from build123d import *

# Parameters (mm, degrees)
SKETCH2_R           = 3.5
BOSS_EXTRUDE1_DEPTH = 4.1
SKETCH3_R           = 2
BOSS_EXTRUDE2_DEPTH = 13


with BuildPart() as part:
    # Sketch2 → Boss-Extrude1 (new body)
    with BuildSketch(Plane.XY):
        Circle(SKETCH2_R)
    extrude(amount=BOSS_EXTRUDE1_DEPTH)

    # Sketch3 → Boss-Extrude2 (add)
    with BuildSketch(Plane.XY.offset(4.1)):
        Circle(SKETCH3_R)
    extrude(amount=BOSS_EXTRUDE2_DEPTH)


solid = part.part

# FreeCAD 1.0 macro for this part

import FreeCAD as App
import Part
import Sketcher
Q = App.Units.Quantity

doc = App.newDocument("Part")
body = doc.addObject("PartDesign::Body", "Body")

# Sketch on XY plane
sketch1 = doc.addObject("Sketcher::SketchObject", "Sketch")
body.addObject(sketch1)
sketch1.AttachmentSupport = (doc.XY_Plane, [""])
sketch1.MapMode = "FlatFace"
sketch1.addGeometry(Part.Circle(App.Vector(0, 0, 0), App.Vector(0, 0, 1), 3.5), False)
sketch1.addConstraint([
    Sketcher.Constraint("Coincident", 0, 3, -1, 1),
    Sketcher.Constraint("Diameter", 0, Q("7 mm")),
])
pad1 = doc.addObject("PartDesign::Pad", "Pad")
body.addObject(pad1)
pad1.Profile = sketch1
pad1.Length = 4.1

# Sketch on XY plane
sketch2 = doc.addObject("Sketcher::SketchObject", "Sketch001")
body.addObject(sketch2)
sketch2.AttachmentSupport = (doc.XY_Plane, [""])
sketch2.MapMode = "FlatFace"
sketch2.AttachmentOffset = App.Placement(App.Vector(0, 0, 4.1), App.Rotation())
sketch2.addGeometry(Part.Circle(App.Vector(0, 0, 0), App.Vector(0, 0, 1), 2), False)
sketch2.addConstraint([
    Sketcher.Constraint("Coincident", 0, 3, -1, 1),
    Sketcher.Constraint("Diameter", 0, Q("4 mm")),
])
pad2 = doc.addObject("PartDesign::Pad", "Pad001")
body.addObject(pad2)
pad2.Profile = sketch2
pad2.Length = 13

doc.recompute()
